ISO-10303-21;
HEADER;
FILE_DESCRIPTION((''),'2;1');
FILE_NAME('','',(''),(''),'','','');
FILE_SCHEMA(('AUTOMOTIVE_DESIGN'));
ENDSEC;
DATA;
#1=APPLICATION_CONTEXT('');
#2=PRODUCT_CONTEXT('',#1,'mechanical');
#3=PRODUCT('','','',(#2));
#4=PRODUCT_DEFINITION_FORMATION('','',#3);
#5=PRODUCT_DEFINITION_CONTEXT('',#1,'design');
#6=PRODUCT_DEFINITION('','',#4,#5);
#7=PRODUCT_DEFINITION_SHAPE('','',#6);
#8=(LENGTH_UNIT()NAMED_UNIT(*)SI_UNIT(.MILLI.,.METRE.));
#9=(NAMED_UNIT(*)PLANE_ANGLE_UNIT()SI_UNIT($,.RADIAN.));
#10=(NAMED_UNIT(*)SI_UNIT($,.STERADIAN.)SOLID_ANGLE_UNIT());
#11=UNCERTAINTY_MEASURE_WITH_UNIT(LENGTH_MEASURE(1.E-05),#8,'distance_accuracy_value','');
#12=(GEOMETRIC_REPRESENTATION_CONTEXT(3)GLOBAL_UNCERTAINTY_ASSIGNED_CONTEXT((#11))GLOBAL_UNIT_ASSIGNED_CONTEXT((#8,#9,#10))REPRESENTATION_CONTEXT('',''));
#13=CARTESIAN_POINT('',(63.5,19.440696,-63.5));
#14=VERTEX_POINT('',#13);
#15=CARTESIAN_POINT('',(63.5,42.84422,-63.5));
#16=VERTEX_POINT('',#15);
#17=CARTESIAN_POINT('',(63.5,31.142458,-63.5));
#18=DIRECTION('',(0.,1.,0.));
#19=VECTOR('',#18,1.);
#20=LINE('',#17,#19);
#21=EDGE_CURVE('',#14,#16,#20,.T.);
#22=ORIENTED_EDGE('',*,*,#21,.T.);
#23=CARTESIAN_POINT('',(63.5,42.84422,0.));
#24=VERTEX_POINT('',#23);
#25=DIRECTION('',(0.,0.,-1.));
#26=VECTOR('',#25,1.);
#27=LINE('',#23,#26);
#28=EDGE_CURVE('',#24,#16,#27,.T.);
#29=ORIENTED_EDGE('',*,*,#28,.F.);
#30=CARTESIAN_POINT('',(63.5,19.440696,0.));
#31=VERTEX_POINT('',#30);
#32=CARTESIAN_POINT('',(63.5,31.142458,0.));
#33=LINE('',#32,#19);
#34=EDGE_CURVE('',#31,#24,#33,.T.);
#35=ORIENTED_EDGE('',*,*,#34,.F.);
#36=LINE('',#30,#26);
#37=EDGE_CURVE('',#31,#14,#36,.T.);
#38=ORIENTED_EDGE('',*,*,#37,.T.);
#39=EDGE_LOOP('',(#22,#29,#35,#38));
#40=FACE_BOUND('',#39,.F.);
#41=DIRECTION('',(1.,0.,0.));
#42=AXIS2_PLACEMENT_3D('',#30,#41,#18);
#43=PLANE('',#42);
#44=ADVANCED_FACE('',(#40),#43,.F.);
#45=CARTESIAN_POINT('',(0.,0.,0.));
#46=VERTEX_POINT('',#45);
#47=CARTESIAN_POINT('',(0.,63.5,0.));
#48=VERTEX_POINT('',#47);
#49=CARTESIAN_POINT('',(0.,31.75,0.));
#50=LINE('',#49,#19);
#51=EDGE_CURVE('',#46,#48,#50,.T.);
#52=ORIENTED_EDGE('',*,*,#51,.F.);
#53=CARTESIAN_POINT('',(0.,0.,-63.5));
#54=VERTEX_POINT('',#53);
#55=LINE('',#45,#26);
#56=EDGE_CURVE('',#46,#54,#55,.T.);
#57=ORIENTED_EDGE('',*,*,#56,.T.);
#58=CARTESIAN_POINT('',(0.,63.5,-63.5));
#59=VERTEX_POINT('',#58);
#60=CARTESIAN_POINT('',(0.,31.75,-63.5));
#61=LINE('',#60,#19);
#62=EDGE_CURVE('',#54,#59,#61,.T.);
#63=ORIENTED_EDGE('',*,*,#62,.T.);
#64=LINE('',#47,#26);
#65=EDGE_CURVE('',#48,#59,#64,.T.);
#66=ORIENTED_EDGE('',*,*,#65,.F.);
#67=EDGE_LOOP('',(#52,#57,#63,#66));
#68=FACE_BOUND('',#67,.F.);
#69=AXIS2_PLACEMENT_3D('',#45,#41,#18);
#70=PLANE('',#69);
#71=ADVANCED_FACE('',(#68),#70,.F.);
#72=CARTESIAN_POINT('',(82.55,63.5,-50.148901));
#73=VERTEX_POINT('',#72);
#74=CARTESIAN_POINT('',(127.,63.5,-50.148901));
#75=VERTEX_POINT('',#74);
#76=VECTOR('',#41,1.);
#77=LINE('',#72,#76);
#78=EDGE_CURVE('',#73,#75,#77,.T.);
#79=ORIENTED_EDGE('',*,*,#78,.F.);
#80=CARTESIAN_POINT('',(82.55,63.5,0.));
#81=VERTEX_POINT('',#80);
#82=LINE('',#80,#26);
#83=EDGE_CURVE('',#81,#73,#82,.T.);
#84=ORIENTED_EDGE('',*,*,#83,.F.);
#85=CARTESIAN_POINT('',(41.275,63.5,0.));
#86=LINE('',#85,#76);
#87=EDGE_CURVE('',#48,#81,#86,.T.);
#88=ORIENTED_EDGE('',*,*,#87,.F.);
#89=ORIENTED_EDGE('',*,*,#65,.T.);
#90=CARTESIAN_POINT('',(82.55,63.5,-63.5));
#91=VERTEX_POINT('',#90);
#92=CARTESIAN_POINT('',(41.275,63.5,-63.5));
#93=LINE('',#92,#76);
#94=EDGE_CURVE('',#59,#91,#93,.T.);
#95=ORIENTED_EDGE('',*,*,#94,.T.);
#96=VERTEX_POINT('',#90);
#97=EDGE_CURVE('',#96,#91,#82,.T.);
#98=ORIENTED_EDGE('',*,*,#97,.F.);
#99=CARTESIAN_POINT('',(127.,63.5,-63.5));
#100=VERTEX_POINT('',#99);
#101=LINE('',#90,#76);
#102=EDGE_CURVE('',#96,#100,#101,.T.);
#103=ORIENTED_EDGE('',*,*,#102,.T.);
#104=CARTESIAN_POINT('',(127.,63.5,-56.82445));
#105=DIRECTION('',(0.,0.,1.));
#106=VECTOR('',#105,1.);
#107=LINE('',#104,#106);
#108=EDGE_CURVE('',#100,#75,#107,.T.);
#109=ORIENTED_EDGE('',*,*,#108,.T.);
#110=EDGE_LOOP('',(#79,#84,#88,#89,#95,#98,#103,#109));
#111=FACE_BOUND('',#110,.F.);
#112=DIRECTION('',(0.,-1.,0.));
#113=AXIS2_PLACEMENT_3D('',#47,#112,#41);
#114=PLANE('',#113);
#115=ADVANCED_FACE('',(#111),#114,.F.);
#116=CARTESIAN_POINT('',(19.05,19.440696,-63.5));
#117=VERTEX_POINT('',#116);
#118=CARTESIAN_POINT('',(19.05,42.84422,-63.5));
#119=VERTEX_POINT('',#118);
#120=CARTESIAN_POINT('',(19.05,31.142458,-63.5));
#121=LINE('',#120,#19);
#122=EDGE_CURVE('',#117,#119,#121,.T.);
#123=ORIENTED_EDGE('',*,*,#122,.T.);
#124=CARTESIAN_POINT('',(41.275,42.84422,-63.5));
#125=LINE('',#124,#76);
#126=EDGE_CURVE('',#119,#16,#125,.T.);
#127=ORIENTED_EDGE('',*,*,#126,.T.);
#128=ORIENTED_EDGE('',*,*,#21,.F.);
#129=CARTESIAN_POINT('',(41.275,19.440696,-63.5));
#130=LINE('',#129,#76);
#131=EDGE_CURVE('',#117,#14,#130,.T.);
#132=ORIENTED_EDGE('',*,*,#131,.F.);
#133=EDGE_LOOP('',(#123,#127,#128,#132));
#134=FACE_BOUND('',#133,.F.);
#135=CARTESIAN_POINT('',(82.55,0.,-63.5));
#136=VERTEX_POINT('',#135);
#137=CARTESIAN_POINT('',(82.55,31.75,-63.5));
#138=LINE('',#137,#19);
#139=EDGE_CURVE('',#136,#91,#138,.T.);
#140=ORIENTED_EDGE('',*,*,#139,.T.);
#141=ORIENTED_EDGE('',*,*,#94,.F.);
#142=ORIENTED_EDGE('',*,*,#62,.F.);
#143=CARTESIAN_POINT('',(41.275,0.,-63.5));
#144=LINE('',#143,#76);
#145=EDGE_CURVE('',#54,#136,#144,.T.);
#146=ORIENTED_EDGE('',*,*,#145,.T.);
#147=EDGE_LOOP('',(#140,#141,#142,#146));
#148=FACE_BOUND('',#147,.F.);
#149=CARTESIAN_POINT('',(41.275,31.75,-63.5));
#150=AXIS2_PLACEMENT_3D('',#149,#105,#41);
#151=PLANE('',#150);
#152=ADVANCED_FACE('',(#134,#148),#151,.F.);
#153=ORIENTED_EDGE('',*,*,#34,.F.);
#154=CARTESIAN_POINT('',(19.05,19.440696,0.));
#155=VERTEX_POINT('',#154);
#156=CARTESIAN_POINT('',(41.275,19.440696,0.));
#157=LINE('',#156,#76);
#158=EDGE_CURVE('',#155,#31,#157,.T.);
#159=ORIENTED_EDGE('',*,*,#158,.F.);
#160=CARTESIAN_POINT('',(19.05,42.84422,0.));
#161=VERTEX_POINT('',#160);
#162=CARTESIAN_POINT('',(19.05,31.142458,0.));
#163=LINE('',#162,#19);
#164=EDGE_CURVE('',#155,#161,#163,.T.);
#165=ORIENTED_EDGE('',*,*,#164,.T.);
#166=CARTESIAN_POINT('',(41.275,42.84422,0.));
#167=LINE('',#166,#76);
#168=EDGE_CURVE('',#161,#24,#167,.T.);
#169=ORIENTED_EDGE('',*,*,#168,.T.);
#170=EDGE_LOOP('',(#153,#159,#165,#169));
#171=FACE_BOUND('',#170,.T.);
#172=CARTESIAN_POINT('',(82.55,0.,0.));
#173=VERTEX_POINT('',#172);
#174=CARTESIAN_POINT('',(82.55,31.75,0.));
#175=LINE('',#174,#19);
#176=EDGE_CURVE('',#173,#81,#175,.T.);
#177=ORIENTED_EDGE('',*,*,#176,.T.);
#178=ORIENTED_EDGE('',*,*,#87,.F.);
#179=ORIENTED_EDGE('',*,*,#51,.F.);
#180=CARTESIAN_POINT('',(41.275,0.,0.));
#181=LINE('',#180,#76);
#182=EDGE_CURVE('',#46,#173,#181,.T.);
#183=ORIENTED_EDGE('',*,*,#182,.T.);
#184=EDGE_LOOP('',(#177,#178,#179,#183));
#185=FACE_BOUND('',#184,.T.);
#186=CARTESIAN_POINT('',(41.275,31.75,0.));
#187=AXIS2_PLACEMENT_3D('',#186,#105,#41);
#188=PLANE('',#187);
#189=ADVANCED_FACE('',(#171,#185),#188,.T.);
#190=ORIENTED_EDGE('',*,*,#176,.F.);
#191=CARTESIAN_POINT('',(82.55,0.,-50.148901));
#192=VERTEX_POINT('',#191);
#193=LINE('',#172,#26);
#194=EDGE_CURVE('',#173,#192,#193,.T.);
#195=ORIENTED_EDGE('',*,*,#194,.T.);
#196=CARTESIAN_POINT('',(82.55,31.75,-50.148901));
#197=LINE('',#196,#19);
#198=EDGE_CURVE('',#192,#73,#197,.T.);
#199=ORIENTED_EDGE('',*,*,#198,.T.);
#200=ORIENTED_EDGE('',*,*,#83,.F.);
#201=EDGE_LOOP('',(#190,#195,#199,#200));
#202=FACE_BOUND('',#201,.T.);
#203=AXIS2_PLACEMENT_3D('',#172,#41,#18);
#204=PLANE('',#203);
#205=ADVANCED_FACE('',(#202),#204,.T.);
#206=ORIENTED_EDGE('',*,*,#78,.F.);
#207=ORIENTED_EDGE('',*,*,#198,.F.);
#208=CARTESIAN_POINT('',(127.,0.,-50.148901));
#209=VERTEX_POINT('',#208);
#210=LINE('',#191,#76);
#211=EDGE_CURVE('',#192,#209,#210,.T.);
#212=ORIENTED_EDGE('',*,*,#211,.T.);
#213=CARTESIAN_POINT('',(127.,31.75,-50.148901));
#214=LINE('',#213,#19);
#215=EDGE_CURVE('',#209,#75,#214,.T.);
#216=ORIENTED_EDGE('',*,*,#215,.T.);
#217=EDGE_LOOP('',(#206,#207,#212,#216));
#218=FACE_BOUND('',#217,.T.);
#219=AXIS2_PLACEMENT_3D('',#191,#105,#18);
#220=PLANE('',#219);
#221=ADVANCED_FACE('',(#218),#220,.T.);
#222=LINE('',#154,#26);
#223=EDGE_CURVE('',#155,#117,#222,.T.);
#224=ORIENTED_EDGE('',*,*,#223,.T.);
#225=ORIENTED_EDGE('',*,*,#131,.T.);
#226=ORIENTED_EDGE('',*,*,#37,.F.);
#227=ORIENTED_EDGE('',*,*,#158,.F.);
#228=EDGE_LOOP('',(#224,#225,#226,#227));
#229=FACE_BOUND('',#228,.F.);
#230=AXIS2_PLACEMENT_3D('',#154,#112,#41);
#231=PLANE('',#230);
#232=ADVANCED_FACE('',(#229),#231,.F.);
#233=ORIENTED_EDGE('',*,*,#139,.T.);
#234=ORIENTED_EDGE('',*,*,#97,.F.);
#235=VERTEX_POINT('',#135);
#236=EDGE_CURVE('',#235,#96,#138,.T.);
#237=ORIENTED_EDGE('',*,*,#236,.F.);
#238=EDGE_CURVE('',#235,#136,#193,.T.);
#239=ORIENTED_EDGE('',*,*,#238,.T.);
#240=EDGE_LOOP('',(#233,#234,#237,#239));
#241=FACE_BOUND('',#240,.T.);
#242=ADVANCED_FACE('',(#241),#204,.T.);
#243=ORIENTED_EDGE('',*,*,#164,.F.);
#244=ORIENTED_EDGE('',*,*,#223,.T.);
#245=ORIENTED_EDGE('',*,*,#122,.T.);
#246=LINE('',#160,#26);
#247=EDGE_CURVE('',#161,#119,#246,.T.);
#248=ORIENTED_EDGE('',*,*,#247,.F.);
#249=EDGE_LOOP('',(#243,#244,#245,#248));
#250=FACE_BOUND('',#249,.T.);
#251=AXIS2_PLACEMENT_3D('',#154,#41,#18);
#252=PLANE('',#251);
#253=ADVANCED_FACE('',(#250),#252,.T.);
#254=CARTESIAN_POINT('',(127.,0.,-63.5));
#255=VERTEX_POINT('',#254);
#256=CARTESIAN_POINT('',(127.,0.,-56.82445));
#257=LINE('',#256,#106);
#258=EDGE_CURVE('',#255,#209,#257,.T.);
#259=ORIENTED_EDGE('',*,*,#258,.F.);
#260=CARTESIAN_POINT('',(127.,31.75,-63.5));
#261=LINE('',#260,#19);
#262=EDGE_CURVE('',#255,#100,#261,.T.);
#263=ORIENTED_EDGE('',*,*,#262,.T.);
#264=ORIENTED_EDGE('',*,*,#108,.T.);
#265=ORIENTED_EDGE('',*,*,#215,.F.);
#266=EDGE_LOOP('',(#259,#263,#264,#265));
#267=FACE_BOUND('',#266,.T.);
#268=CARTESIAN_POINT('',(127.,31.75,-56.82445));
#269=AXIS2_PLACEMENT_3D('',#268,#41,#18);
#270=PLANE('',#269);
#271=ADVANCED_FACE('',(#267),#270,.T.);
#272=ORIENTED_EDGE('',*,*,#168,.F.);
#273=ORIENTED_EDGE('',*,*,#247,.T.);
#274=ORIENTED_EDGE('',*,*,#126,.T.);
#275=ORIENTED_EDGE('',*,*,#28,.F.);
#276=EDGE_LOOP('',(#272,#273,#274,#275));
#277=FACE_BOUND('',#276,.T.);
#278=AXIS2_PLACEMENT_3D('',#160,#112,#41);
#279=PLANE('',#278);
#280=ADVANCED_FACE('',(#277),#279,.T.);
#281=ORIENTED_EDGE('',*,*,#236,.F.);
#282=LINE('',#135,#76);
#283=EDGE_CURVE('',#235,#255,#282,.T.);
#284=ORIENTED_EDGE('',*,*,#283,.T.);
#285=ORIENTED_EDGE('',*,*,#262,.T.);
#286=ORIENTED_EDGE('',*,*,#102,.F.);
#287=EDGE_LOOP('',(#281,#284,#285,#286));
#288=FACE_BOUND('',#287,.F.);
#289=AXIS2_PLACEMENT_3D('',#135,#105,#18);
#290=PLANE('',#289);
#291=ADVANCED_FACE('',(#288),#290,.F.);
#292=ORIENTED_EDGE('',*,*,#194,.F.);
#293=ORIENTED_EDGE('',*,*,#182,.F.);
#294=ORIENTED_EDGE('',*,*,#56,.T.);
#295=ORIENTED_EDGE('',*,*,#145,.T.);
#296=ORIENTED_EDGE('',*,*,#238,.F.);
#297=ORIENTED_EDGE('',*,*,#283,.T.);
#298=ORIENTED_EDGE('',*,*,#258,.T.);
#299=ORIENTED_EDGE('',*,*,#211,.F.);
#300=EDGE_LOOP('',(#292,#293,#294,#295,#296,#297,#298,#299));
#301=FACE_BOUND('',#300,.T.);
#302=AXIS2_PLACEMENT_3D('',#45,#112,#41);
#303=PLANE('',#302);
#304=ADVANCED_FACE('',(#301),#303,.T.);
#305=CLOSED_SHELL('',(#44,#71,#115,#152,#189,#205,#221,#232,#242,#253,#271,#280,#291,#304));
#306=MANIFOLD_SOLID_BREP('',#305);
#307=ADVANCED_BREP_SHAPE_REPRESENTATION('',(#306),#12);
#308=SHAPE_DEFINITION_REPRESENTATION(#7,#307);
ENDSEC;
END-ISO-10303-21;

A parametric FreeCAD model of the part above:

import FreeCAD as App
import Part
import Sketcher

V = App.Vector
Q = App.Units.Quantity


def add_polygon(sketch, points):
    """Adds a closed chain of lines whose ends are joined by coincident constraints."""
    first, n = sketch.GeometryCount, len(points)
    for a, b in zip(points, points[1:] + points[:1]):
        sketch.addGeometry(Part.LineSegment(App.Vector(*a, 0), App.Vector(*b, 0)), False)
    for i in range(n):
        sketch.addConstraint(Sketcher.Constraint("Coincident", first + i, 2, first + (i + 1) % n, 1))

doc = App.newDocument("Part")
body = doc.addObject("PartDesign::Body", "Body")

# Sketch on XY plane
sketch1 = body.newObject("Sketcher::SketchObject", "Sketch")
sketch1.AttachmentSupport = (doc.getObject("XY_Plane"), [""])
sketch1.MapMode = "FlatFace"
add_polygon(sketch1, [(0, 64), (0, 0), (83, 0), (83, 64)])  # lines 0-3
add_polygon(sketch1, [(64, 19), (19, 19), (19, 43), (64, 43)])  # lines 4-7
sketch1.addConstraint([
    Sketcher.Constraint("Vertical", 0),
    Sketcher.Constraint("Horizontal", 1),
    Sketcher.Constraint("Vertical", 2),
    Sketcher.Constraint("Horizontal", 3),
    Sketcher.Constraint("Horizontal", 4),
    Sketcher.Constraint("Vertical", 5),
    Sketcher.Constraint("Horizontal", 6),
    Sketcher.Constraint("Vertical", 7),
    Sketcher.Constraint("Coincident", 0, 2, -1, 1),
    Sketcher.Constraint("DistanceY", 0, 2, 0, 1, Q("2.5 in")),
    Sketcher.Constraint("DistanceX", 1, 1, 1, 2, Q("3.25 in")),
    Sketcher.Constraint("DistanceX", 4, 2, 4, 1, Q("1.75 in")),
    Sketcher.Constraint("DistanceX", -1, 1, 6, 2, Q("2.5 in")),
    Sketcher.Constraint("DistanceY", 5, 1, 5, 2, 23.403525),
    Sketcher.Constraint("DistanceY", -1, 1, 5, 2, 42.84422),
])
pad1 = body.newObject("PartDesign::Pad", "Pad")
pad1.Profile = sketch1
pad1.Length = Q("2.5 in")
pad1.Reversed = True

# Sketch on YZ plane
sketch2 = body.newObject("Sketcher::SketchObject", "Sketch001")
sketch2.AttachmentSupport = (doc.getObject("YZ_Plane"), [""])
sketch2.MapMode = "FlatFace"
sketch2.AttachmentOffset = App.Placement(V(0, 0, 3.25 * 25.4), App.Rotation())
add_polygon(sketch2, [(0, -50), (0, -63), (64, -63), (64, -50)])  # lines 0-3
sketch2.addConstraint([
    Sketcher.Constraint("Vertical", 0),
    Sketcher.Constraint("Horizontal", 1),
    Sketcher.Constraint("Vertical", 2),
    Sketcher.Constraint("Horizontal", 3),
    Sketcher.Constraint("PointOnObject", 0, 2, -2),
    Sketcher.Constraint("DistanceX", 1, 1, 1, 2, Q("2.5 in")),
    Sketcher.Constraint("DistanceY", 0, 2, -1, 1, Q("2.5 in")),
    Sketcher.Constraint("DistanceY", 0, 2, 0, 1, 13.351099),
])
pad2 = body.newObject("PartDesign::Pad", "Pad001")
pad2.Profile = sketch2
pad2.Length = Q("1.75 in")

doc.recompute()
